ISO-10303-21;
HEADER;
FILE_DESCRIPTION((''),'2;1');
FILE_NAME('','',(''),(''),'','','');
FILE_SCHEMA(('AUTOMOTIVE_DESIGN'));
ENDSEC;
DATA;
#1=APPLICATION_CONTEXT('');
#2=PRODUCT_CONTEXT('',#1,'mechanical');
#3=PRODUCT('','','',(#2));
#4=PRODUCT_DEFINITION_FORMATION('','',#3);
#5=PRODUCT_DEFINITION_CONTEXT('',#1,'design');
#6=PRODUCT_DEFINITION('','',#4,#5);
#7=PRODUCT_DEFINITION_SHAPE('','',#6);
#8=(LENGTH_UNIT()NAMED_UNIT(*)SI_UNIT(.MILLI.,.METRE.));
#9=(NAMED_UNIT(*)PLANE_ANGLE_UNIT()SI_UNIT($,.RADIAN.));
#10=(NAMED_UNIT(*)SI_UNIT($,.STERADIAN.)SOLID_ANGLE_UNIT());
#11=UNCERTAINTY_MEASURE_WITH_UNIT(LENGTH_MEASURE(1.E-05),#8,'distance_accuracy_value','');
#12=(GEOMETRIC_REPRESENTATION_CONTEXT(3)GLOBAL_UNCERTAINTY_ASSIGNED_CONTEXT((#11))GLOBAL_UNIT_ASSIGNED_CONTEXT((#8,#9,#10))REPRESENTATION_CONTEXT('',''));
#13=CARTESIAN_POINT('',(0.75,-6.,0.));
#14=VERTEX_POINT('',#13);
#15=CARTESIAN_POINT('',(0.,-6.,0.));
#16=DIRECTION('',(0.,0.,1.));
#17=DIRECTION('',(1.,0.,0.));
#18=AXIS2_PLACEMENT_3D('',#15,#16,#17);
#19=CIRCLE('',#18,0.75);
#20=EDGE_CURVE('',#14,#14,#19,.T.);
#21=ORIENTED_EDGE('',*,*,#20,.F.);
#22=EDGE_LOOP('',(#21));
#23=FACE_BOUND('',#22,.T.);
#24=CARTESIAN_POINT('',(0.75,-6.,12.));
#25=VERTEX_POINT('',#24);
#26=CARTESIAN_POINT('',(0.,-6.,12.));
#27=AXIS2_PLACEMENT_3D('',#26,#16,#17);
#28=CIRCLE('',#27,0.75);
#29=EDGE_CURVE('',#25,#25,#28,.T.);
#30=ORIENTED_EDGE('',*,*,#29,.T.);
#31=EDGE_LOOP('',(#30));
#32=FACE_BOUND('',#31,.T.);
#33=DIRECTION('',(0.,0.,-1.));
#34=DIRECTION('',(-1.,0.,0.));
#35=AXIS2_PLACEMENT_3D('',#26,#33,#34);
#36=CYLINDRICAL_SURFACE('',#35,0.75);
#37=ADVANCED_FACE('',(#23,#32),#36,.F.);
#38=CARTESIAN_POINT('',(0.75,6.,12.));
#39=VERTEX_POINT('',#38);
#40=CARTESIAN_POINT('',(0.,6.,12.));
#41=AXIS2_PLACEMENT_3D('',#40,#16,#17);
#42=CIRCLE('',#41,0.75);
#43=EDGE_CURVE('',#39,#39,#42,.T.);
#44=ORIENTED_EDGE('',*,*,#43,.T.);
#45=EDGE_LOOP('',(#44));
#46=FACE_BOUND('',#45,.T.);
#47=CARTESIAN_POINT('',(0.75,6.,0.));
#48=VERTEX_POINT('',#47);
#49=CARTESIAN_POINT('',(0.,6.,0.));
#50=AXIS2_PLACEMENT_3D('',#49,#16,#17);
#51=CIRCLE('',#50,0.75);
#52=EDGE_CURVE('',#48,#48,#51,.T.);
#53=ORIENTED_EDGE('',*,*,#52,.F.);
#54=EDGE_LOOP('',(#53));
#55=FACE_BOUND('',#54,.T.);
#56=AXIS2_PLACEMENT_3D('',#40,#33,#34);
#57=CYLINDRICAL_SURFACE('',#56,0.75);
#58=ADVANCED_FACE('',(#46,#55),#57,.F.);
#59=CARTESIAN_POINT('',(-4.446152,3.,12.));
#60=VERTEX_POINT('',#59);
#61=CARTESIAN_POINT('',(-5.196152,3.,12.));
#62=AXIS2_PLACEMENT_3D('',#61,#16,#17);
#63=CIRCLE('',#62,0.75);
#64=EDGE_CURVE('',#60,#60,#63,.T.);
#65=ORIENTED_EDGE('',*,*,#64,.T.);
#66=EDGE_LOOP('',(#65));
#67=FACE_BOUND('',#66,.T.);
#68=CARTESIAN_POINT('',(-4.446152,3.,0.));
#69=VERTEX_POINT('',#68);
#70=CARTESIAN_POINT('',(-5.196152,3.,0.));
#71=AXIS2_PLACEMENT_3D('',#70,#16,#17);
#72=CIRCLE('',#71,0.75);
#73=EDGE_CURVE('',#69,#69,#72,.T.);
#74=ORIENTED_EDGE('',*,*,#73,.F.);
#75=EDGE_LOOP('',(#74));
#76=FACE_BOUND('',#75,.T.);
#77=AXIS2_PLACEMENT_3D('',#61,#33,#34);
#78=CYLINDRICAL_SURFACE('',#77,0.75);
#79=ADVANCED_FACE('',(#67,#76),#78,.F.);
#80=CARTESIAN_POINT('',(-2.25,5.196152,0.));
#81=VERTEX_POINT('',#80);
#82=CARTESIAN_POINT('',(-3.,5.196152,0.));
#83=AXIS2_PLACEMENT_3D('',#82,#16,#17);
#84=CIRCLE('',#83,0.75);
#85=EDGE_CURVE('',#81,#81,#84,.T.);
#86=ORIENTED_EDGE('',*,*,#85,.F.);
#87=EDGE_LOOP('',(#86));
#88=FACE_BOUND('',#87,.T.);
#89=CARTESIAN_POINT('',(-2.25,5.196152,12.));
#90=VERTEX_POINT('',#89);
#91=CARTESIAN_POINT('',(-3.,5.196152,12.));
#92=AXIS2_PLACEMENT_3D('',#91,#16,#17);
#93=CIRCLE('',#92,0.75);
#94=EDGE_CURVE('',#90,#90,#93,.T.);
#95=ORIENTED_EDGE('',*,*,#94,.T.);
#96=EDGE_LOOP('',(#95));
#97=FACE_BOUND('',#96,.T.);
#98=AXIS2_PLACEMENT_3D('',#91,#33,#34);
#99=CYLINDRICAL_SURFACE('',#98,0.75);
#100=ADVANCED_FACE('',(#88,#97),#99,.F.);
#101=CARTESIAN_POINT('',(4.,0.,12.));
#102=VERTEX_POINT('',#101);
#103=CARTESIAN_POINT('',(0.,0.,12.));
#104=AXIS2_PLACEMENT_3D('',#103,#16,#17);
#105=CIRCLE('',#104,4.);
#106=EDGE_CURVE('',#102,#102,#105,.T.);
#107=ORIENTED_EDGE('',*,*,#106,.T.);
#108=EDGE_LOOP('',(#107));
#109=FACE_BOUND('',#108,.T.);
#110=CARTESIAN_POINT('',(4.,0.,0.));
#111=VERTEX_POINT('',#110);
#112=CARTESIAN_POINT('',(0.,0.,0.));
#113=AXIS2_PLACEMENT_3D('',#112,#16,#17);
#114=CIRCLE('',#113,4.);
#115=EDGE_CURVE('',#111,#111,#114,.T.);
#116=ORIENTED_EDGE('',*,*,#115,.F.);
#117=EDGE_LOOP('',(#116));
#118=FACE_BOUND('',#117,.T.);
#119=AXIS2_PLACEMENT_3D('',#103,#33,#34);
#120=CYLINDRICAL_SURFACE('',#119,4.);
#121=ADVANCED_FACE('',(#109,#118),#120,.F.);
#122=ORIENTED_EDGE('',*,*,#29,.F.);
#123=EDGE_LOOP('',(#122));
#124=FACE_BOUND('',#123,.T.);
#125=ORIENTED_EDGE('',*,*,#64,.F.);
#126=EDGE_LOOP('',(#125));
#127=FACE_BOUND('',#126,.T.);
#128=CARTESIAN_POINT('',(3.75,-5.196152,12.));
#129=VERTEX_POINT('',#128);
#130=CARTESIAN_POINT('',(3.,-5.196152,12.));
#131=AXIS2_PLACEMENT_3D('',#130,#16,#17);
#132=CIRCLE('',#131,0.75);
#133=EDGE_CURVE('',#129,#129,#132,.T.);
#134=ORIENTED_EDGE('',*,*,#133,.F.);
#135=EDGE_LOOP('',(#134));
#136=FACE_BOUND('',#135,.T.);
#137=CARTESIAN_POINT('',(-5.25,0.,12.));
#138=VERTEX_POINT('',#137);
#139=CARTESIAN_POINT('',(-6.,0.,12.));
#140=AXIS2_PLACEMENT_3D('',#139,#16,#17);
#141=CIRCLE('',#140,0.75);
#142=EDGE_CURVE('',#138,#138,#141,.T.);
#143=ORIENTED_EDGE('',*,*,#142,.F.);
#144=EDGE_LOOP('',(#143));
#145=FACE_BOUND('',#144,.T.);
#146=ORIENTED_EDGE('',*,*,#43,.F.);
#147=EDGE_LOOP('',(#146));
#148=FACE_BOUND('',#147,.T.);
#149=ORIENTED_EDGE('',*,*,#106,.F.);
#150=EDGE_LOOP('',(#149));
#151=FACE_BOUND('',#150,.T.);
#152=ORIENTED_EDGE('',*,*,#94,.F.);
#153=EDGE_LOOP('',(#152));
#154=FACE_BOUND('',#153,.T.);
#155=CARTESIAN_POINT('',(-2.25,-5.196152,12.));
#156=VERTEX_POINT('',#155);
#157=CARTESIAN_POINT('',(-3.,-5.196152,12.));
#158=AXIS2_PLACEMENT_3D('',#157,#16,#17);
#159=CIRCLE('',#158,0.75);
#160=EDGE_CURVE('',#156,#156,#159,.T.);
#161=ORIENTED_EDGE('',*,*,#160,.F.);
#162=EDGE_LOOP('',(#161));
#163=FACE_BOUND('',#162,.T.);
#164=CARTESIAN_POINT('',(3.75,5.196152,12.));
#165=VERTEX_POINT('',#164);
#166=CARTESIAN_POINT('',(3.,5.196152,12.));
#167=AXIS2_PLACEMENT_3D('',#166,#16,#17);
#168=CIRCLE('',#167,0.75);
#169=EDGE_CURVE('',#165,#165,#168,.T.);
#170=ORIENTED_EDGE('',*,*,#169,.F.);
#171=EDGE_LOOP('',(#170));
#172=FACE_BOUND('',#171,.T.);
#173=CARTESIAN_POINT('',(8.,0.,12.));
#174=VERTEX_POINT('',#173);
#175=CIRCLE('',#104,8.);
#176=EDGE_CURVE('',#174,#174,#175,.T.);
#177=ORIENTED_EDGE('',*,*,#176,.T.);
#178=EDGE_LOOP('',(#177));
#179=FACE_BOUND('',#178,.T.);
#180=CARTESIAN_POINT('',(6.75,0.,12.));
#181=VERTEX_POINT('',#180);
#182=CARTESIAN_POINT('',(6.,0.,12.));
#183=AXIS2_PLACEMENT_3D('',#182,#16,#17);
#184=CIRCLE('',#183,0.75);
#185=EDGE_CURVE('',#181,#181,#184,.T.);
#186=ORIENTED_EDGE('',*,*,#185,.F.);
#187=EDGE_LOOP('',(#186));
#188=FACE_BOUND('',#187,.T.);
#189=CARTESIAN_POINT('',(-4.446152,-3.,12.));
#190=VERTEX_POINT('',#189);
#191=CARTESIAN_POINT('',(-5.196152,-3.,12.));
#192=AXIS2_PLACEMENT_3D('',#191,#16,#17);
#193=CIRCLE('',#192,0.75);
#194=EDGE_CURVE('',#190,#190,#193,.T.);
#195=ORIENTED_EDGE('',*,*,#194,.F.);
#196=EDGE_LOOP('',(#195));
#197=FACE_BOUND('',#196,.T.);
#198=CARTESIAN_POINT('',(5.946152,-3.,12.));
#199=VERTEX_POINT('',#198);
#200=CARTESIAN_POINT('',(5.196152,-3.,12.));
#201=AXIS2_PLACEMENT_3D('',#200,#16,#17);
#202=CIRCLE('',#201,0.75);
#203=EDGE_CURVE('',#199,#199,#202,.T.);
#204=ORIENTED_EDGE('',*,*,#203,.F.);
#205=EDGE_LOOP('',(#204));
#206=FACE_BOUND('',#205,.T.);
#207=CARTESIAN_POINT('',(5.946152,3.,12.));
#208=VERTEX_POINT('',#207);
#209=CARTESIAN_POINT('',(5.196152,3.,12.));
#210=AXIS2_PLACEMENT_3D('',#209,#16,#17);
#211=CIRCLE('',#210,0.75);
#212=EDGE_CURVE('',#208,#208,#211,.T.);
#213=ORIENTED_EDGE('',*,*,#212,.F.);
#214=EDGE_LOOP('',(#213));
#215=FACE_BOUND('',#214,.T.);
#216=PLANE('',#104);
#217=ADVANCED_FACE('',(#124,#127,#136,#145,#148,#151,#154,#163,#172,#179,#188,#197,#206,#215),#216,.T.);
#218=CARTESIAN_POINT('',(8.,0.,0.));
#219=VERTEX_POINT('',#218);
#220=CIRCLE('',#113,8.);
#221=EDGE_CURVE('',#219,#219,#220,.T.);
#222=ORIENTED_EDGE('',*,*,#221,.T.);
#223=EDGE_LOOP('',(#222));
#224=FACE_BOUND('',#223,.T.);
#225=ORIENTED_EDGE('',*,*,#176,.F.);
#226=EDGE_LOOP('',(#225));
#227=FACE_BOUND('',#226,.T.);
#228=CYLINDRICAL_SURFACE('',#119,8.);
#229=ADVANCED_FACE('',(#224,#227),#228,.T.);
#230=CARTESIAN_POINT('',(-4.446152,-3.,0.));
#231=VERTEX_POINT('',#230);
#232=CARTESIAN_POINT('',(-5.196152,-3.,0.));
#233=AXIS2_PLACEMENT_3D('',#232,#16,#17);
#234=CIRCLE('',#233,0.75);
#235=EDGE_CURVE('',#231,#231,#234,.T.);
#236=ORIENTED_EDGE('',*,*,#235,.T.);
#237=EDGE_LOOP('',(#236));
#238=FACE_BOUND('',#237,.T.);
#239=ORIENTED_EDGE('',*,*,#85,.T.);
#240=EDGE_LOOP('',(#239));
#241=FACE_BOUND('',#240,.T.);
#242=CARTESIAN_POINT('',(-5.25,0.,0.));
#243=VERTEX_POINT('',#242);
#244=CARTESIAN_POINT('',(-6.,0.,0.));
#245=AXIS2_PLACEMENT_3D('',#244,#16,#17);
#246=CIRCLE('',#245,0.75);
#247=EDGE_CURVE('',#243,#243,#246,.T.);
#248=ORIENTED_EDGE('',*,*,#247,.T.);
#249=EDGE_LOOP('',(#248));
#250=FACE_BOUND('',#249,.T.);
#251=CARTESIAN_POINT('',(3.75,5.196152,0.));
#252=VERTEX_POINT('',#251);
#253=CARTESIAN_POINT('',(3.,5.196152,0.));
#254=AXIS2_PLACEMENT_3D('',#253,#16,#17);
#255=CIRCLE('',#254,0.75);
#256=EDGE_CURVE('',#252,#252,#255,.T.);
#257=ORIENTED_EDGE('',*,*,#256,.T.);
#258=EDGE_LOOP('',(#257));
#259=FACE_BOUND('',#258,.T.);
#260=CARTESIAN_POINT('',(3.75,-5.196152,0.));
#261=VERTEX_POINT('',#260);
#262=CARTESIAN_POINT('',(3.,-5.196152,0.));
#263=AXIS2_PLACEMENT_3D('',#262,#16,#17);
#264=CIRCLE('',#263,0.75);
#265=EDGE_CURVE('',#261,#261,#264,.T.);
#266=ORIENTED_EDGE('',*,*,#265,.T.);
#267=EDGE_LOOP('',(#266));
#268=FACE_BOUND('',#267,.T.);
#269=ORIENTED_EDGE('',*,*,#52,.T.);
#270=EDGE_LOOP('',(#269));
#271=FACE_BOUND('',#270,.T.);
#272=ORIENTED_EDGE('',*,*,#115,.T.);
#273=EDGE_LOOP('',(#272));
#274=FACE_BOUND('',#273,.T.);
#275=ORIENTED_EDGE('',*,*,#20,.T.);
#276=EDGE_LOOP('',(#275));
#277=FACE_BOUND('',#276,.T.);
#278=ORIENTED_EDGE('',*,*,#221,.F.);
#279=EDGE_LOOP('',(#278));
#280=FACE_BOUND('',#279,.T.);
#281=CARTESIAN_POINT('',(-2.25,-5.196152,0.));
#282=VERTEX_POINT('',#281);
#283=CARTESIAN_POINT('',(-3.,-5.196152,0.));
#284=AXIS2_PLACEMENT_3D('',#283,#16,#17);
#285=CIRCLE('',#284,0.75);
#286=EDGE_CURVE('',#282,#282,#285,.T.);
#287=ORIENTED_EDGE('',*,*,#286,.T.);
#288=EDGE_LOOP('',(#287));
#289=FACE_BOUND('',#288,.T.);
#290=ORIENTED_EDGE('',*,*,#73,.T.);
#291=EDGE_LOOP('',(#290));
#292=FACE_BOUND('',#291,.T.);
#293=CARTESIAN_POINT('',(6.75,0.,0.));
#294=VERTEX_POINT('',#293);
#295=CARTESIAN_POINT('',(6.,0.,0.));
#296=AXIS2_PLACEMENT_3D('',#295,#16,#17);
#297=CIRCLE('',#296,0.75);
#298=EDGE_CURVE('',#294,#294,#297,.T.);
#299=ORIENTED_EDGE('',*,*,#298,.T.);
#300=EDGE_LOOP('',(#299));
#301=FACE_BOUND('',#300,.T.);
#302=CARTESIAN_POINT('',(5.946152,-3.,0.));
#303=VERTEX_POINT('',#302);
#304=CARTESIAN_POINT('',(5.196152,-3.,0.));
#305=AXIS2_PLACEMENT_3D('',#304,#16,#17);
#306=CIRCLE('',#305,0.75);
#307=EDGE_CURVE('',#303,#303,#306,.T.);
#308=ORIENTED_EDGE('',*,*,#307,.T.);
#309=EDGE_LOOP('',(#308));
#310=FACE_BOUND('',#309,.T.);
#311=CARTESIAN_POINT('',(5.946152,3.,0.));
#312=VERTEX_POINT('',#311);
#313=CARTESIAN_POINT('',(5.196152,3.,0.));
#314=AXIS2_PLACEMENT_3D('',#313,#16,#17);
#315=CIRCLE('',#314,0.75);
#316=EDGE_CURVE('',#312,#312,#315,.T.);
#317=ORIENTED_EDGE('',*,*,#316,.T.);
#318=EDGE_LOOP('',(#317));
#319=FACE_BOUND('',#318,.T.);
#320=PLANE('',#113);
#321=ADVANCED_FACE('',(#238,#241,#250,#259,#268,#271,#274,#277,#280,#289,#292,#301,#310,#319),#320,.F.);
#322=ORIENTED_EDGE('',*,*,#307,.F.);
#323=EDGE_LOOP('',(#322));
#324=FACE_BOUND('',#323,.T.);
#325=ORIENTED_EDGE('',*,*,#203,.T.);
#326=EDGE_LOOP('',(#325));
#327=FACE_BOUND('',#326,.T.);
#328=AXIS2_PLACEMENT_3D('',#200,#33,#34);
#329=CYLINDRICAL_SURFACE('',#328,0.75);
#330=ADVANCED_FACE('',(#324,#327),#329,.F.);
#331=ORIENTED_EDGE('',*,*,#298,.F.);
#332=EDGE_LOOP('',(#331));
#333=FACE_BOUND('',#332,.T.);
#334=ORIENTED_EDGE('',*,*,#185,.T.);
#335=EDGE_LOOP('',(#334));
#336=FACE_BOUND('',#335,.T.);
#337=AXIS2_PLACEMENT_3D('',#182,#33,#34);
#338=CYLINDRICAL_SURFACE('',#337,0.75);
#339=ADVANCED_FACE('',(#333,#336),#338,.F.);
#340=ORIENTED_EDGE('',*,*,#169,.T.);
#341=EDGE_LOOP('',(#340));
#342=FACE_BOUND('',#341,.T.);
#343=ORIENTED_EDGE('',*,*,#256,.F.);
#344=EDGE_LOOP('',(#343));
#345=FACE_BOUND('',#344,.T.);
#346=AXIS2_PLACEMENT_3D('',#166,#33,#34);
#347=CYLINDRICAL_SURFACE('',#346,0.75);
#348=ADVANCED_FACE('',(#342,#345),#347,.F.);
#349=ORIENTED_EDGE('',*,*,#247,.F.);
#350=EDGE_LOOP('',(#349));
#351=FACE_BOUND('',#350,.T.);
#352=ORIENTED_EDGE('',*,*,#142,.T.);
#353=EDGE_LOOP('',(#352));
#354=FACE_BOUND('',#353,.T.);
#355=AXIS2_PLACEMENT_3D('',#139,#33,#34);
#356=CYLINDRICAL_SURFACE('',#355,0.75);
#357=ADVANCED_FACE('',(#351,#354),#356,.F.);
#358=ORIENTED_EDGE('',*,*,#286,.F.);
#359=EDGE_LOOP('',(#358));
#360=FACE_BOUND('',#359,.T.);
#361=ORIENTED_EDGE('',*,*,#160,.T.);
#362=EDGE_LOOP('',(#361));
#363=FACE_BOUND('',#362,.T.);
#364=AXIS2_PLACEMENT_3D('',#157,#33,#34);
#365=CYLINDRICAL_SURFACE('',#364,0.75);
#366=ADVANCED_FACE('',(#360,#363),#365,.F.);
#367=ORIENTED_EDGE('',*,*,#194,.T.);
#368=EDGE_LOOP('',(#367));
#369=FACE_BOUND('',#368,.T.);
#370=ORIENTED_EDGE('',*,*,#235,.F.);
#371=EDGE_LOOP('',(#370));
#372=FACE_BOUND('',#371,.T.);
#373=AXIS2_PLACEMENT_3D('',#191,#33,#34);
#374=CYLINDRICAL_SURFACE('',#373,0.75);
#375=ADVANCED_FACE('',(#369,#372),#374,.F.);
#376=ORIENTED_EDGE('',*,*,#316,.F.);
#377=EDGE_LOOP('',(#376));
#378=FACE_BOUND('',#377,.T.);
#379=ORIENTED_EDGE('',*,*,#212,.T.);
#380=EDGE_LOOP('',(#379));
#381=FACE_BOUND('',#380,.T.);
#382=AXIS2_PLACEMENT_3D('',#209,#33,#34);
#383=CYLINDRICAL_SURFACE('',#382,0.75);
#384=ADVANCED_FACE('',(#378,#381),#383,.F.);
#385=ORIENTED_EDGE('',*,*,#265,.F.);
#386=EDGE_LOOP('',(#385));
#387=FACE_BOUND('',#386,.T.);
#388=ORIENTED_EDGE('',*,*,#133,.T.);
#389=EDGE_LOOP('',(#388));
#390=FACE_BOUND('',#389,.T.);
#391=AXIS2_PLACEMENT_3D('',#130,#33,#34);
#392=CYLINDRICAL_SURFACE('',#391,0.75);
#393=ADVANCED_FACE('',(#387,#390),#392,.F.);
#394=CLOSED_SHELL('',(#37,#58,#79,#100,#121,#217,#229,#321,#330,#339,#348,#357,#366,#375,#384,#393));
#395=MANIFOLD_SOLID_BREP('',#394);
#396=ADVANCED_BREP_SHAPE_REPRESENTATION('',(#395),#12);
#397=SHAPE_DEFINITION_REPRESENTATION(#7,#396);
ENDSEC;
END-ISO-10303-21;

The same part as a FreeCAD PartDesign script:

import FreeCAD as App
import Part
import Sketcher

V = App.Vector
Q = App.Units.Quantity

doc = App.newDocument("Part")
body = doc.addObject("PartDesign::Body", "Body")

# Sketch on XY plane
sketch1 = body.newObject("Sketcher::SketchObject", "Sketch")
sketch1.AttachmentSupport = (doc.getObject("XY_Plane"), [""])
sketch1.MapMode = "FlatFace"
sketch1.addGeometry([
    Part.Circle(V(0, 0, 0), V(0, 0, 1), 8),  # 0
    Part.Circle(V(-3, -5.2, 0), V(0, 0, 1), 0.8),  # 1
    Part.Circle(V(-5.2, -3, 0), V(0, 0, 1), 0.8),  # 2
    Part.Circle(V(0, -6, 0), V(0, 0, 1), 0.8),  # 3
    Part.Circle(V(3, -5.2, 0), V(0, 0, 1), 0.8),  # 4
    Part.Circle(V(5.2, -3, 0), V(0, 0, 1), 0.8),  # 5
    Part.Circle(V(-6, 0, 0), V(0, 0, 1), 0.8),  # 6
    Part.Circle(V(-5.2, 3, 0), V(0, 0, 1), 0.8),  # 7
    Part.Circle(V(-3, 5.2, 0), V(0, 0, 1), 0.8),  # 8
    Part.Circle(V(0, 0, 0), V(0, 0, 1), 4),  # 9
    Part.Circle(V(6, 0, 0), V(0, 0, 1), 0.8),  # 10
    Part.Circle(V(5.2, 3, 0), V(0, 0, 1), 0.8),  # 11
    Part.Circle(V(0, 6, 0), V(0, 0, 1), 0.8),  # 12
    Part.Circle(V(3, 5.2, 0), V(0, 0, 1), 0.8),  # 13
], False)
sketch1.addConstraint([
    Sketcher.Constraint("Coincident", 0, 3, -1, 1),
    Sketcher.Constraint("Coincident", 9, 3, -1, 1),
    Sketcher.Constraint("Equal", 1, 2),
    Sketcher.Constraint("Equal", 2, 3),
    Sketcher.Constraint("Equal", 3, 4),
    Sketcher.Constraint("Equal", 4, 5),
    Sketcher.Constraint("Equal", 5, 6),
    Sketcher.Constraint("Equal", 6, 7),
    Sketcher.Constraint("Equal", 7, 8),
    Sketcher.Constraint("Equal", 8, 10),
    Sketcher.Constraint("Equal", 10, 11),
    Sketcher.Constraint("Equal", 11, 12),
    Sketcher.Constraint("Equal", 12, 13),
    Sketcher.Constraint("Symmetric", 5, 3, 7, 3, -1, 1),
    Sketcher.Constraint("Symmetric", 4, 3, 8, 3, -1, 1),
    Sketcher.Constraint("Symmetric", 6, 3, 10, 3, -1, 1),
    Sketcher.Constraint("Symmetric", 2, 3, 11, 3, -1, 1),
    Sketcher.Constraint("Symmetric", 3, 3, 12, 3, -1, 1),
    Sketcher.Constraint("Symmetric", 1, 3, 13, 3, -1, 1),
    Sketcher.Constraint("Symmetric", 1, 3, 4, 3, -2),
    Sketcher.Constraint("Symmetric", 2, 3, 5, 3, -2),
    Sketcher.Constraint("PointOnObject", 3, 3, -2),
    Sketcher.Constraint("PointOnObject", 6, 3, -1),
    Sketcher.Constraint("Diameter", 0, Q("16 mm")),
    Sketcher.Constraint("Diameter", 9, Q("8 mm")),
    Sketcher.Constraint("Diameter", 1, Q("1.5 mm")),
    Sketcher.Constraint("DistanceX", 1, 3, -1, 1, Q("3 mm")),
    Sketcher.Constraint("DistanceY", 2, 3, -1, 1, Q("3 mm")),
    Sketcher.Constraint("DistanceY", 3, 3, -1, 1, Q("6 mm")),
    Sketcher.Constraint("DistanceX", 6, 3, -1, 1, Q("6 mm")),
    Sketcher.Constraint("DistanceY", 1, 3, -1, 1, Q("5.196152 mm")),
    Sketcher.Constraint("DistanceX", 2, 3, -1, 1, Q("5.196152 mm")),
])
pad1 = body.newObject("PartDesign::Pad", "Pad")
pad1.Profile = sketch1
pad1.Length = 12

doc.recompute()
